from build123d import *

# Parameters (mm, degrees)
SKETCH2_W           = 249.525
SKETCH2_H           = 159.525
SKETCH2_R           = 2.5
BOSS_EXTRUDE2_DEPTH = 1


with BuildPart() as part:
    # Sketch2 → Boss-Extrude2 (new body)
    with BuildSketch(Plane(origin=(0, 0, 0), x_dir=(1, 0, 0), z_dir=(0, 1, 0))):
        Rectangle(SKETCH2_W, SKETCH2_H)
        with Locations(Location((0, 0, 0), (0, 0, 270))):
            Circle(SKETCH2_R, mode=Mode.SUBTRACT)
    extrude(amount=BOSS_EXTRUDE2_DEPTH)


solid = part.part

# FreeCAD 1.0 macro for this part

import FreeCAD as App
import Part
import Sketcher
Q = App.Units.Quantity


def add_polygon(sketch, points):
    """Adds a closed chain of lines whose ends are joined by coincident constraints."""
    first, n = sketch.GeometryCount, len(points)
    for a, b in zip(points, points[1:] + points[:1]):
        sketch.addGeometry(Part.LineSegment(App.Vector(*a, 0), App.Vector(*b, 0)), False)
    for i in range(n):
        sketch.addConstraint(Sketcher.Constraint("Coincident", first + i, 2, first + (i + 1) % n, 1))

doc = App.newDocument("Part")
params = doc.addObject("Spreadsheet::Sheet", "Params")
for row, (alias, value) in enumerate([
    ("sketch1_diameter", "5 mm"),
    ("pad1_length", "1 mm"),
], start=1):
    params.set(f"A{row}", alias)
    params.set(f"B{row}", "=" + value)
    params.setAlias(f"B{row}", alias)

body = doc.addObject("PartDesign::Body", "Body")

sketch1 = body.newObject("Sketcher::SketchObject", "Sketch")
sketch1.AttachmentSupport = (doc.getObject("XZ_Plane"), [""])
sketch1.MapMode = "FlatFace"
add_polygon(sketch1, [(-124.8, -79.8), (-124.8, 79.8), (124.8, 79.8), (124.8, -79.8)])
sketch1.addGeometry(Part.Circle(App.Vector(0, 0, 0), App.Vector(0, 0, 1), 2.5), False)
sketch1.addConstraint([
    Sketcher.Constraint("Vertical", 0),
    Sketcher.Constraint("Horizontal", 1),
    Sketcher.Constraint("Vertical", 2),
    Sketcher.Constraint("Horizontal", 3),
    Sketcher.Constraint("Coincident", 4, 3, -1, 1),
    Sketcher.Constraint("Symmetric", 0, 2, 2, 2, -1, 1),
    Sketcher.Constraint("Diameter", 4, Q("5 mm")),
    Sketcher.Constraint("DistanceX", 1, 1, 1, 2, Q("249.525 mm")),
    Sketcher.Constraint("DistanceY", 0, 1, 0, 2, Q("159.525 mm")),
])
sketch1.setExpression("Constraints[10]", "Params.sketch1_diameter")
pad1 = body.newObject("PartDesign::Pad", "Pad")
pad1.Profile = sketch1
pad1.setExpression("Length", "Params.pad1_length")
pad1.Reversed = True

doc.recompute()
